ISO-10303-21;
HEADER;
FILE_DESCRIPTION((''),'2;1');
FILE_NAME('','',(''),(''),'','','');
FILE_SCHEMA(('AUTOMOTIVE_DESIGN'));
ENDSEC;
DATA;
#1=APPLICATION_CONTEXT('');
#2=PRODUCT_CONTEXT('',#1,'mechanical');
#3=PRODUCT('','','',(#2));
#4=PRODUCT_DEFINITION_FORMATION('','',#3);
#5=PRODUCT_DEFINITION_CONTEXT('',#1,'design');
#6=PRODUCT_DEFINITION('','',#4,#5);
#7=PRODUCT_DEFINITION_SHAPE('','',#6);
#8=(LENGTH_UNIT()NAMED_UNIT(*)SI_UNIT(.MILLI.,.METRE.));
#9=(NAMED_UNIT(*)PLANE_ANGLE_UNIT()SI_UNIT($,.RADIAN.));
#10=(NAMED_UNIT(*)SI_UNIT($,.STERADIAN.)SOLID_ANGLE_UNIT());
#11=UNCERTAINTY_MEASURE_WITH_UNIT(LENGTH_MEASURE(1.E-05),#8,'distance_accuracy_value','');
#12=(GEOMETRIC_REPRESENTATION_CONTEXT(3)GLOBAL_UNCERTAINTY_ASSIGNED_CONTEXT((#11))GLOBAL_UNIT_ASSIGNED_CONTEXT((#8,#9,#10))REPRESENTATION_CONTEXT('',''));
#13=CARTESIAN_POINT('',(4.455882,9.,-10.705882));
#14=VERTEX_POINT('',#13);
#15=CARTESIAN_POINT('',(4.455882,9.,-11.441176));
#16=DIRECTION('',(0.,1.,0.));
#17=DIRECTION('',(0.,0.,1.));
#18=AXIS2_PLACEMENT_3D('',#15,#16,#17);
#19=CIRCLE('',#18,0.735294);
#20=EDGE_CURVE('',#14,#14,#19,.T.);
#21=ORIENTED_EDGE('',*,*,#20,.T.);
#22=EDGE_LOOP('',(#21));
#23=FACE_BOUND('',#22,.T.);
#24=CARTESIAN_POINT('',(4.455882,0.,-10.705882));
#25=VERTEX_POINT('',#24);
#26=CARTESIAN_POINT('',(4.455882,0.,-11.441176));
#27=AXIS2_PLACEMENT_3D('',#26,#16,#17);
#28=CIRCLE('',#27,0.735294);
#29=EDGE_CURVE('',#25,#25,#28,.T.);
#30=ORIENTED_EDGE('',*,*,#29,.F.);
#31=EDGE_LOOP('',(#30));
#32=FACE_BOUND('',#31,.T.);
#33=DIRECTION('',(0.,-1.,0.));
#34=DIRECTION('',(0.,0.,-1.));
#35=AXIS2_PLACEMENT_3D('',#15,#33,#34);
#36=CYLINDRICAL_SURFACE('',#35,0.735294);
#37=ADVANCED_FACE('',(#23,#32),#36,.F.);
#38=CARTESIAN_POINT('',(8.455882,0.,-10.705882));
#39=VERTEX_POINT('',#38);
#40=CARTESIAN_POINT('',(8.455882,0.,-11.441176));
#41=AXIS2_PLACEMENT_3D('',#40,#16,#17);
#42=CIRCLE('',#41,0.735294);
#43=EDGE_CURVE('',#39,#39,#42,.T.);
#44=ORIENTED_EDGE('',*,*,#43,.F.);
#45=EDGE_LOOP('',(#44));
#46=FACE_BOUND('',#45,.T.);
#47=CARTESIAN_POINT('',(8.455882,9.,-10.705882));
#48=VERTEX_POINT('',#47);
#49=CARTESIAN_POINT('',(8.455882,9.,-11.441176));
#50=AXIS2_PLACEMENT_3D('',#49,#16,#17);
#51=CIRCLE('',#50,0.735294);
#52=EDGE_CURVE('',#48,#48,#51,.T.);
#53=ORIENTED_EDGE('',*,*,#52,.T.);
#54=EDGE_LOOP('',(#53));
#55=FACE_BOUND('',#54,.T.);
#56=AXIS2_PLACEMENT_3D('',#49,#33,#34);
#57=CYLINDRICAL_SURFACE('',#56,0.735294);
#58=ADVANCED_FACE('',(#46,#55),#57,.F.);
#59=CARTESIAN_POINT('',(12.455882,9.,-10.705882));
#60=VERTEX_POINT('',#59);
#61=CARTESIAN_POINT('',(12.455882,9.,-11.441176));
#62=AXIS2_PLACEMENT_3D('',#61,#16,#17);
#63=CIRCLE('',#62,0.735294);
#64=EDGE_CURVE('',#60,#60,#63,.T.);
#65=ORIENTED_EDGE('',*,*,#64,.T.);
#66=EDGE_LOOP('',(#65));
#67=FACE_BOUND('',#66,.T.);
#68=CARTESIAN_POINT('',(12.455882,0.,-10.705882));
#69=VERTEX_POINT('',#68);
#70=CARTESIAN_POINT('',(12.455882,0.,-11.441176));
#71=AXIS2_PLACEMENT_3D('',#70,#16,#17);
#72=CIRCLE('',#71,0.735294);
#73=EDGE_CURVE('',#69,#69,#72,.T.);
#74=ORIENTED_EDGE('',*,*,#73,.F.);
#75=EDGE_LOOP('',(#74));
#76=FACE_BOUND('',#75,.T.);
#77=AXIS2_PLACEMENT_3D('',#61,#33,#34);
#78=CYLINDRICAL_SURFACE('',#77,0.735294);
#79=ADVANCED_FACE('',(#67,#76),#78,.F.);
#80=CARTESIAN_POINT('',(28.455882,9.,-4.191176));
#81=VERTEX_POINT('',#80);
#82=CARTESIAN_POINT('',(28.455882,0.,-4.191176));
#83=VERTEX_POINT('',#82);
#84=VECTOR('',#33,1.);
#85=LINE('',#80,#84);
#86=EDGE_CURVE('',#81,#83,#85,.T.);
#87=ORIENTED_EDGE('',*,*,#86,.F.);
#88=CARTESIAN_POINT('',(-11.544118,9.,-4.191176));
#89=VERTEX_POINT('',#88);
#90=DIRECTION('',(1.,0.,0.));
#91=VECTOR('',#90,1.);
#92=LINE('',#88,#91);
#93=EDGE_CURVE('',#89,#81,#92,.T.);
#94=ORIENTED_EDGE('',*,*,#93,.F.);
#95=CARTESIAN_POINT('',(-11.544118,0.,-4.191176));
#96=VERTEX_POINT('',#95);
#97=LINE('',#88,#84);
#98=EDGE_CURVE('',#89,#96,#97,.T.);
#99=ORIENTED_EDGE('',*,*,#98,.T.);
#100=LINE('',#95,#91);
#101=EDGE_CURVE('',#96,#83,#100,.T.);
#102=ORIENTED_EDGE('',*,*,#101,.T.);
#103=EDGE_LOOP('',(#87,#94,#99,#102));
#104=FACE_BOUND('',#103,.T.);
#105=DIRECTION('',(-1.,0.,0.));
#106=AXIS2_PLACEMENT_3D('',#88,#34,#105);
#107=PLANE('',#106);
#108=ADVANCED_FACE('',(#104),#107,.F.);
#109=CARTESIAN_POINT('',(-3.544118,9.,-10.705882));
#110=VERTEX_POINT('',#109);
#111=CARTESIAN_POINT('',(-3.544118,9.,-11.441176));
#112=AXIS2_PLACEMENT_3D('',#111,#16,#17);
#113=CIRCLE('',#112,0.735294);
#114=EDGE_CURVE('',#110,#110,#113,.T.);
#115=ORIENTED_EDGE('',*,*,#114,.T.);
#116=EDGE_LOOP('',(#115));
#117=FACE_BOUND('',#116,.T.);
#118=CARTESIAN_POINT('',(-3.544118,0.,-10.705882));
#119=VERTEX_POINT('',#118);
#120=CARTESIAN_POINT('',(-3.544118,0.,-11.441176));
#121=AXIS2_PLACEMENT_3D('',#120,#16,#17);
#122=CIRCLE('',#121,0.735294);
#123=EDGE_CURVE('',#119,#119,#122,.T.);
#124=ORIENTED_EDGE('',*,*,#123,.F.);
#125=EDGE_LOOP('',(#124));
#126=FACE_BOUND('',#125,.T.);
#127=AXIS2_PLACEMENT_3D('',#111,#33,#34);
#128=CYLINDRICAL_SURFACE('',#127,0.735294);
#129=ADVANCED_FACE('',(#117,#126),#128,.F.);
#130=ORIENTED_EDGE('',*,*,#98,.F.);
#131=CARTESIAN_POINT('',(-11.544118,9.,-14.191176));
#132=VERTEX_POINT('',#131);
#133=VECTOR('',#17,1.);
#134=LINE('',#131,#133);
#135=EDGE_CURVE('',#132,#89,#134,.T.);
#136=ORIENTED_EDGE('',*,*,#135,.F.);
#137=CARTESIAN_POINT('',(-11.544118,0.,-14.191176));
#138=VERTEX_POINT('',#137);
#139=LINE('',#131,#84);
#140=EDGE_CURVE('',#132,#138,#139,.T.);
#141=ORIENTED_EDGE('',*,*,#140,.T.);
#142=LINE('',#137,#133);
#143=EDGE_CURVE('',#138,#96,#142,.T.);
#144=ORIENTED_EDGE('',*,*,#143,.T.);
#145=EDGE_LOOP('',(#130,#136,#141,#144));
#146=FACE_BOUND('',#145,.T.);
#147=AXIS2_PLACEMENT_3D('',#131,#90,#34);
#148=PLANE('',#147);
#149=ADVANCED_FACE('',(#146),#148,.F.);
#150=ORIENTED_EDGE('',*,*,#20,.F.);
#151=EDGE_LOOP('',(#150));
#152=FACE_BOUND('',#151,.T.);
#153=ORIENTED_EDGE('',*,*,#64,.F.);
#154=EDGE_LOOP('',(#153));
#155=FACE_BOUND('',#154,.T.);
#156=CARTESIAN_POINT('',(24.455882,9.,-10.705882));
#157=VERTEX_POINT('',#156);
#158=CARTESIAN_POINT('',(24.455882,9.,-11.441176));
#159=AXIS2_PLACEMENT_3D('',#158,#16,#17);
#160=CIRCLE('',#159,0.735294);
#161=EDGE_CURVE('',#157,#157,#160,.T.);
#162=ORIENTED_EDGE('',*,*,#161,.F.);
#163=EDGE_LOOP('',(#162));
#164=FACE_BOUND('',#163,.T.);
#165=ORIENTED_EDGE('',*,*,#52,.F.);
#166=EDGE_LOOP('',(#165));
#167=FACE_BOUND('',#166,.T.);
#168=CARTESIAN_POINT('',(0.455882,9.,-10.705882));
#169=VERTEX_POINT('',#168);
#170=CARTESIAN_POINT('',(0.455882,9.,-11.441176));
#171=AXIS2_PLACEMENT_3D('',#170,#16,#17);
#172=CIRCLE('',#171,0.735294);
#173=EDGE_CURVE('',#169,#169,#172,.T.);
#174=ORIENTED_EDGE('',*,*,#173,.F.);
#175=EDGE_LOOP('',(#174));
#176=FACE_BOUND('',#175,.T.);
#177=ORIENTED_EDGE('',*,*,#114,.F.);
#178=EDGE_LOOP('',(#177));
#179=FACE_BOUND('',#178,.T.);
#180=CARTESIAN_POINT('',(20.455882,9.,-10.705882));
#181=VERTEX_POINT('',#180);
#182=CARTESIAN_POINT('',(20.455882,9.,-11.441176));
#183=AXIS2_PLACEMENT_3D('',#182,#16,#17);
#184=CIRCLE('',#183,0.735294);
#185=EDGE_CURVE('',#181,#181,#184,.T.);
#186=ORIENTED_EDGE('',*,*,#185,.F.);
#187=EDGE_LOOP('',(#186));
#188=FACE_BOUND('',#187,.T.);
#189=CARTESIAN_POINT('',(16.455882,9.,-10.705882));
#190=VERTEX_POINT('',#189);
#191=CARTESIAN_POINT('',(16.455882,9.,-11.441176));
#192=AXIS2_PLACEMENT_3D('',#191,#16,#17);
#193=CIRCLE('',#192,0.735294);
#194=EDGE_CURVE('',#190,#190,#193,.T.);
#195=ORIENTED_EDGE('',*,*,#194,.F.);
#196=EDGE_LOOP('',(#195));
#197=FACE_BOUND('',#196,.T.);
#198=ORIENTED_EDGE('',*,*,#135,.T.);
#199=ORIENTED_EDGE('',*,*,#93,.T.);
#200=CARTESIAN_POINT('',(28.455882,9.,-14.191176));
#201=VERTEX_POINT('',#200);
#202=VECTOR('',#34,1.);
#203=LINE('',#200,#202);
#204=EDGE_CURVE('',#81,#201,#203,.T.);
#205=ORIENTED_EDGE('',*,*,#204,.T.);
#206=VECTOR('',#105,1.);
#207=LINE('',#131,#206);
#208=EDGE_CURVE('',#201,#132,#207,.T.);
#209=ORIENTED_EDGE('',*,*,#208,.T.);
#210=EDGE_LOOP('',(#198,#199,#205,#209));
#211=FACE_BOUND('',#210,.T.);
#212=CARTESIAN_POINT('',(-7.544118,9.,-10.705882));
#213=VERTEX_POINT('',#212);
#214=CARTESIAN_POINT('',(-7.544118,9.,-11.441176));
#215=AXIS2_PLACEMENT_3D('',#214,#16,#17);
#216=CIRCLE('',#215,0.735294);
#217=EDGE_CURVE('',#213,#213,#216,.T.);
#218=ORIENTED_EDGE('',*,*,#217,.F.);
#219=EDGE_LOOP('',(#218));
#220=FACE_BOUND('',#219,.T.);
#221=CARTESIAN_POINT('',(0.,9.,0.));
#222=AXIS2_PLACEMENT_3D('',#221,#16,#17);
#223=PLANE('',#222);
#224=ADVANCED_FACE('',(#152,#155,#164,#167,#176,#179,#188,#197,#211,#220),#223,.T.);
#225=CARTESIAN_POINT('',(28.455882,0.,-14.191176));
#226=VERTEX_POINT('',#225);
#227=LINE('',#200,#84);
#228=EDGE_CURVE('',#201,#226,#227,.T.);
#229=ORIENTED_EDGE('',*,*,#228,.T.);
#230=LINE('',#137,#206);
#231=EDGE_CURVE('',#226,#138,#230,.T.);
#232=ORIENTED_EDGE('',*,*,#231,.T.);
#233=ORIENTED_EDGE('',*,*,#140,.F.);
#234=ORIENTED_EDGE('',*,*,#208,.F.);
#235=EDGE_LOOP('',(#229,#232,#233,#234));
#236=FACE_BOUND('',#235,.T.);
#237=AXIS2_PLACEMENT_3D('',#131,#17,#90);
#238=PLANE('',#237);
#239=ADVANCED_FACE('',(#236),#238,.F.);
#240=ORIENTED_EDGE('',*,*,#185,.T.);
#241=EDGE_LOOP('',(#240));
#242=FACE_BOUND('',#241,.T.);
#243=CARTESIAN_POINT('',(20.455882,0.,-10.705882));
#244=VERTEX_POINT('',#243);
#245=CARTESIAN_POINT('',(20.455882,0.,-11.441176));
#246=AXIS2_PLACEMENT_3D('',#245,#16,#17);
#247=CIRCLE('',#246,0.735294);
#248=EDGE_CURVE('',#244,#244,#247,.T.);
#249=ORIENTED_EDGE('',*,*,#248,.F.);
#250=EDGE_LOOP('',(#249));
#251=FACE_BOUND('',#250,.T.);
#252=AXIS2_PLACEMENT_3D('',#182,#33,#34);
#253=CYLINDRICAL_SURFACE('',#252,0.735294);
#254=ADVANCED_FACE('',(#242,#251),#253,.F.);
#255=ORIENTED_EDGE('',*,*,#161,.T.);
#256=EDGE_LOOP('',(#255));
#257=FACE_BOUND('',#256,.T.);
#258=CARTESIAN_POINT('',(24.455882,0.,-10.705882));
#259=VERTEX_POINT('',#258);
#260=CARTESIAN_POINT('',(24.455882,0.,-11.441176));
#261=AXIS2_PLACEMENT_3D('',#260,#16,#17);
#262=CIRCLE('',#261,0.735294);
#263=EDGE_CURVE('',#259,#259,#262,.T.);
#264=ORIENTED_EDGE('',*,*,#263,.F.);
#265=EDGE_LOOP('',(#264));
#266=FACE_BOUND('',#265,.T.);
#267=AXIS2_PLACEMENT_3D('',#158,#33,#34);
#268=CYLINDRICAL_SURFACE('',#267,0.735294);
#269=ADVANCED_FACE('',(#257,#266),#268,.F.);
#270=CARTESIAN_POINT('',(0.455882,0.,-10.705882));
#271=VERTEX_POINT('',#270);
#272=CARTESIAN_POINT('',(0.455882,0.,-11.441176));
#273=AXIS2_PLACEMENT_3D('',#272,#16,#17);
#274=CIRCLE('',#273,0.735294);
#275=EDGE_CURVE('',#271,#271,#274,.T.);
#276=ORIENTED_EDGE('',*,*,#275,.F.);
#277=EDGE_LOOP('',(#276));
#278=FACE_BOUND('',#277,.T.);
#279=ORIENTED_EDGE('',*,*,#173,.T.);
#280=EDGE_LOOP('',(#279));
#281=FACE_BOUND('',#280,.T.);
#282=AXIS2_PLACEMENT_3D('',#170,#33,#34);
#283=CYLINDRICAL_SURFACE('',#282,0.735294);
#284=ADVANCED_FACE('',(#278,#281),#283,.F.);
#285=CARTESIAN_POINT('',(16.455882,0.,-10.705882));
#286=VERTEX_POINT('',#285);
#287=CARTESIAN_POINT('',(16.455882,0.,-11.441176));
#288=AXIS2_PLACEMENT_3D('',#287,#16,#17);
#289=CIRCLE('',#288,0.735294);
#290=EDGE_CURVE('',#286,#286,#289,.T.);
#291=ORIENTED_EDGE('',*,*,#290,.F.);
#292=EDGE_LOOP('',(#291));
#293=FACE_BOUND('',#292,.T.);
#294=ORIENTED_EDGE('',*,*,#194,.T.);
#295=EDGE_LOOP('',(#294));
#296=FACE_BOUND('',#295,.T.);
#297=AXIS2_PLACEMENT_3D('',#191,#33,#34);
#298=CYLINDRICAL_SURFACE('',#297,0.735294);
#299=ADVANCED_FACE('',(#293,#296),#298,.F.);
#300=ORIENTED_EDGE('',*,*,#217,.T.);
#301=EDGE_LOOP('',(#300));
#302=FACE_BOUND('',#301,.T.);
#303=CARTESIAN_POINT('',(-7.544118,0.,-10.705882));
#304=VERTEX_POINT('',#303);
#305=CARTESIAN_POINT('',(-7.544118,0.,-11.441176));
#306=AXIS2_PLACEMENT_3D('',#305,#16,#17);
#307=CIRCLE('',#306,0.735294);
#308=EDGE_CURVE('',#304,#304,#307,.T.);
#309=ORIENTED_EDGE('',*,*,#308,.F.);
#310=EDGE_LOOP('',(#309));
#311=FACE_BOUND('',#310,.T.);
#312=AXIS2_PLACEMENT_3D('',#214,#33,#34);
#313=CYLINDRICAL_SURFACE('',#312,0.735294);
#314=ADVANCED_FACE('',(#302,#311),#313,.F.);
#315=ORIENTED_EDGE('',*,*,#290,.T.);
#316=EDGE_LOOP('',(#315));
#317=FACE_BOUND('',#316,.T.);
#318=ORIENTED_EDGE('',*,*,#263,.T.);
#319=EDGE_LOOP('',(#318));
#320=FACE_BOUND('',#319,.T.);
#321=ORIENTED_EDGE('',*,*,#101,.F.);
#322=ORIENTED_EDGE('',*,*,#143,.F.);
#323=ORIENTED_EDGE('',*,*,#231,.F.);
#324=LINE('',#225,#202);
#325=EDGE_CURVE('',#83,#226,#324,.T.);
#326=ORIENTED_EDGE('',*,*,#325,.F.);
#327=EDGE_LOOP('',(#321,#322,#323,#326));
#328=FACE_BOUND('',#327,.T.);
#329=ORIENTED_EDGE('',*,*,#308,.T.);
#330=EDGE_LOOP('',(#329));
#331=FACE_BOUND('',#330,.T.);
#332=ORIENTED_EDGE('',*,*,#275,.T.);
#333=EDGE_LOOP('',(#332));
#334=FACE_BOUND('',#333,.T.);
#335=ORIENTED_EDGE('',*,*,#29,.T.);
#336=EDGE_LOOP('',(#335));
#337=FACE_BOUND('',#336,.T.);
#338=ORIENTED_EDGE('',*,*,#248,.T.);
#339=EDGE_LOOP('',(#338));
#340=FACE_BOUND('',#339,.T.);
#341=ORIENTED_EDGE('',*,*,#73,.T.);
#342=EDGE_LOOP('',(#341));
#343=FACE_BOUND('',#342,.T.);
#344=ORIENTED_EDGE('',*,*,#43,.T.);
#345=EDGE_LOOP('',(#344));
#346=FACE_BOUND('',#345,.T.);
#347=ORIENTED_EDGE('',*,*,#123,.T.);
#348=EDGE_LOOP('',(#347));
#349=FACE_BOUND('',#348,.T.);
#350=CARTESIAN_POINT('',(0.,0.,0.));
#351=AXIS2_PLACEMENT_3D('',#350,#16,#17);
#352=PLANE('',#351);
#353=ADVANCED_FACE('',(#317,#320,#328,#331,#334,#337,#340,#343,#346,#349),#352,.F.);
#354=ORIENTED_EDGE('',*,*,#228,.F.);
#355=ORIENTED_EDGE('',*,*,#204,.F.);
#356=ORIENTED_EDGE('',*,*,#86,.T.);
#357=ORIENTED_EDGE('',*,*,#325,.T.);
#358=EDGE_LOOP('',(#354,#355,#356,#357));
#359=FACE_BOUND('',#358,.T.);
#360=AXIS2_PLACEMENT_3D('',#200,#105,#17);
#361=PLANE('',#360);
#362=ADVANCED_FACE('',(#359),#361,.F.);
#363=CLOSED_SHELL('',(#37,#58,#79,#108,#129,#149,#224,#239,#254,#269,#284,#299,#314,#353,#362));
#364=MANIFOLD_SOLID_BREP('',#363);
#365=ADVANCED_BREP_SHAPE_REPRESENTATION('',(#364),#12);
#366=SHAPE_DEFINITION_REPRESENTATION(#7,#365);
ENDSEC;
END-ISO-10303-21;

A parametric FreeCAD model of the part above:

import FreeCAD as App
import Part
import Sketcher

doc = App.newDocument("Part")
params = doc.addObject("Spreadsheet::Sheet", "Params")
for row, (alias, value) in enumerate([
    ("sketch1_width", "40 mm"),
    ("sketch1_height", "10 mm"),
    ("pad1_length", "9 mm"),
], start=1):
    params.set(f"A{row}", alias)
    params.set(f"B{row}", "=" + value)
    params.setAlias(f"B{row}", alias)

body = doc.addObject("PartDesign::Body", "Body")

sketch1 = body.newObject("Sketcher::SketchObject", "Sketch")
sketch1.AttachmentSupport = (doc.getObject("XZ_Plane"), [""])
sketch1.MapMode = "FlatFace"
sketch1.addGeometry(Part.LineSegment(App.Vector(-11.544118, -14.191176, 0), App.Vector(-11.544118, -4.191176, 0)), False)
sketch1.addGeometry(Part.LineSegment(App.Vector(-11.544118, -4.191176, 0), App.Vector(28.455882, -4.191176, 0)), False)
sketch1.addGeometry(Part.LineSegment(App.Vector(28.455882, -4.191176, 0), App.Vector(28.455882, -14.191176, 0)), False)
sketch1.addGeometry(Part.LineSegment(App.Vector(28.455882, -14.191176, 0), App.Vector(-11.544118, -14.191176, 0)), False)
sketch1.addGeometry(Part.Circle(App.Vector(-7.544118, -11.441176, 0), App.Vector(0, 0, 1), 0.735294), False)
sketch1.addGeometry(Part.Circle(App.Vector(-3.544118, -11.441176, 0), App.Vector(0, 0, 1), 0.735294), False)
sketch1.addGeometry(Part.Circle(App.Vector(0.455882, -11.441176, 0), App.Vector(0, 0, 1), 0.735294), False)
sketch1.addGeometry(Part.Circle(App.Vector(4.455882, -11.441176, 0), App.Vector(0, 0, 1), 0.735294), False)
sketch1.addGeometry(Part.Circle(App.Vector(8.455882, -11.441176, 0), App.Vector(0, 0, 1), 0.735294), False)
sketch1.addGeometry(Part.Circle(App.Vector(12.455882, -11.441176, 0), App.Vector(0, 0, 1), 0.735294), False)
sketch1.addGeometry(Part.Circle(App.Vector(16.455882, -11.441176, 0), App.Vector(0, 0, 1), 0.735294), False)
sketch1.addGeometry(Part.Circle(App.Vector(20.455882, -11.441176, 0), App.Vector(0, 0, 1), 0.735294), False)
sketch1.addGeometry(Part.Circle(App.Vector(24.455882, -11.441176, 0), App.Vector(0, 0, 1), 0.735294), False)
sketch1.addConstraint(Sketcher.Constraint("Coincident", 0, 2, 1, 1))
sketch1.addConstraint(Sketcher.Constraint("Coincident", 1, 2, 2, 1))
sketch1.addConstraint(Sketcher.Constraint("Coincident", 2, 2, 3, 1))
sketch1.addConstraint(Sketcher.Constraint("Coincident", 3, 2, 0, 1))
sketch1.addConstraint(Sketcher.Constraint("Vertical", 0))
sketch1.addConstraint(Sketcher.Constraint("Horizontal", 1))
sketch1.addConstraint(Sketcher.Constraint("Vertical", 2))
sketch1.addConstraint(Sketcher.Constraint("Horizontal", 3))
sketch1.addConstraint(Sketcher.Constraint("Equal", 4, 5))
sketch1.addConstraint(Sketcher.Constraint("Equal", 5, 6))
sketch1.addConstraint(Sketcher.Constraint("Equal", 6, 7))
sketch1.addConstraint(Sketcher.Constraint("Equal", 7, 8))
sketch1.addConstraint(Sketcher.Constraint("Equal", 8, 9))
sketch1.addConstraint(Sketcher.Constraint("Equal", 9, 10))
sketch1.addConstraint(Sketcher.Constraint("Equal", 10, 11))
sketch1.addConstraint(Sketcher.Constraint("Equal", 11, 12))
sketch1.addConstraint(Sketcher.Constraint("Horizontal", 4, 3, 5, 3))
sketch1.addConstraint(Sketcher.Constraint("Horizontal", 5, 3, 6, 3))
sketch1.addConstraint(Sketcher.Constraint("Horizontal", 6, 3, 7, 3))
sketch1.addConstraint(Sketcher.Constraint("Horizontal", 7, 3, 8, 3))
sketch1.addConstraint(Sketcher.Constraint("Horizontal", 8, 3, 9, 3))
sketch1.addConstraint(Sketcher.Constraint("Horizontal", 9, 3, 10, 3))
sketch1.addConstraint(Sketcher.Constraint("Horizontal", 10, 3, 11, 3))
sketch1.addConstraint(Sketcher.Constraint("Horizontal", 11, 3, 12, 3))
sketch1.addConstraint(Sketcher.Constraint("DistanceX", 1, 1, 1, 2, 40.0))
sketch1.addConstraint(Sketcher.Constraint("DistanceY", 0, 1, 0, 2, 10.0))
sketch1.addConstraint(Sketcher.Constraint("DistanceX", 4, 3, 5, 3, 4.0))
sketch1.addConstraint(Sketcher.Constraint("DistanceX", 5, 3, 6, 3, 4.0))
sketch1.addConstraint(Sketcher.Constraint("DistanceX", 6, 3, 7, 3, 4.0))
sketch1.addConstraint(Sketcher.Constraint("DistanceX", 7, 3, 8, 3, 4.0))
sketch1.addConstraint(Sketcher.Constraint("DistanceX", 8, 3, 9, 3, 4.0))
sketch1.addConstraint(Sketcher.Constraint("DistanceX", 9, 3, 10, 3, 4.0))
sketch1.addConstraint(Sketcher.Constraint("DistanceX", 10, 3, 11, 3, 4.0))
sketch1.addConstraint(Sketcher.Constraint("DistanceX", 11, 3, 12, 3, 4.0))
sketch1.addConstraint(Sketcher.Constraint("DistanceX", 0, 2, 4, 3, 4.0))
sketch1.addConstraint(Sketcher.Constraint("Diameter", 4, 1.470588))
sketch1.addConstraint(Sketcher.Constraint("DistanceY", 4, 3, 0, 2, 7.25))
sketch1.addConstraint(Sketcher.Constraint("DistanceX", 4, 3, -1, 1, 7.544118))
sketch1.addConstraint(Sketcher.Constraint("DistanceY", 4, 3, -1, 1, 11.441176))
sketch1.setExpression("Constraints[24]", "Params.sketch1_width")
sketch1.setExpression("Constraints[25]", "Params.sketch1_height")
pad1 = body.newObject("PartDesign::Pad", "Pad")
pad1.Profile = sketch1
pad1.setExpression("Length", "Params.pad1_length")
pad1.Reversed = True

doc.recompute()
